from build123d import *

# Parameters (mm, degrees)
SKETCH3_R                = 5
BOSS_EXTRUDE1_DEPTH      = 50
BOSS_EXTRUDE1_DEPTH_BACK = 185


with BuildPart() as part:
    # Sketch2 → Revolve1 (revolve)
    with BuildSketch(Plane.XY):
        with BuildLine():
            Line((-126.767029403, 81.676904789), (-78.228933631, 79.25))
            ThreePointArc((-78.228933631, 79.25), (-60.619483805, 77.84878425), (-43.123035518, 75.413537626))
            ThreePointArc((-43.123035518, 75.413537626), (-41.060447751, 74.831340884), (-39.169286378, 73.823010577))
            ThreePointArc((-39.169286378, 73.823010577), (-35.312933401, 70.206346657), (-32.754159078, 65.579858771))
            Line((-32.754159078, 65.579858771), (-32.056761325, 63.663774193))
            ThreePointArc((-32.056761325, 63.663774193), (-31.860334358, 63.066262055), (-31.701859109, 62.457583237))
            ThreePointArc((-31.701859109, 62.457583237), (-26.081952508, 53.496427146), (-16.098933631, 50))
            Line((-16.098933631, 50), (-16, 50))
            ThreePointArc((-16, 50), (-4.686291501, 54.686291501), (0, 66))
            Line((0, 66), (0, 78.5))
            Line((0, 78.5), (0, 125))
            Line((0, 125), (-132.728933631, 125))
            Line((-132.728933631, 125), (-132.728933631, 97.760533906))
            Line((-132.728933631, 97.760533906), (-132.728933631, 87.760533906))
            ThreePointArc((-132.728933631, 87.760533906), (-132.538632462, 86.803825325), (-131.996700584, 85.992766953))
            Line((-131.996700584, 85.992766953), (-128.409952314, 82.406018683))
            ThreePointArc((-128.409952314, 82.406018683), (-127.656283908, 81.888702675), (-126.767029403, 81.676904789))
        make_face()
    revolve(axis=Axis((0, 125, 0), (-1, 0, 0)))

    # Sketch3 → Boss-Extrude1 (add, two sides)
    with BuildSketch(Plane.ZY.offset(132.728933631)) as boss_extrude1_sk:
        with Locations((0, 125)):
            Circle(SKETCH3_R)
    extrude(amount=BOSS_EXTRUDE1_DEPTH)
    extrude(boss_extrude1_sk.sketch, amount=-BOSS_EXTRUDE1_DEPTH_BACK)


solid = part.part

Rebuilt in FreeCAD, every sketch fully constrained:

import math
import FreeCAD as App
import Part
import Sketcher

V = App.Vector
Q = App.Units.Quantity

doc = App.newDocument("Part")
body = doc.addObject("PartDesign::Body", "Body")

sketch1 = doc.addObject("Sketcher::SketchObject", "Sketch")
body.addObject(sketch1)
sketch1.AttachmentSupport = (doc.XY_Plane, [""])
sketch1.MapMode = "FlatFace"
sketch1.addGeometry(Part.LineSegment(V(-126.767029, 81.676905, 0), V(-78.228934, 79.25, 0)), False)
sketch1.addGeometry(Part.ArcOfCircle(Part.Circle(V(-93.210219, -220.375701, 0), V(0, 0, 1), 300), math.radians(80.389044), math.radians(87.137595)), False)
sketch1.addGeometry(Part.ArcOfCircle(Part.Circle(V(-44.792608, 65.553896, 0), V(0, 0, 1), 10), math.radians(55.782762), math.radians(80.389044)), False)
sketch1.addGeometry(Part.ArcOfCircle(Part.Circle(V(-48.728934, 59.765516, 0), V(0, 0, 1), 17), math.radians(20), math.radians(55.782762)), False)
sketch1.addGeometry(Part.LineSegment(V(-32.754159, 65.579859, 0), V(-32.056761, 63.663774, 0)), False)
sketch1.addGeometry(Part.ArcOfCircle(Part.Circle(V(-41.453688, 60.243573, 0), V(0, 0, 1), 10), math.radians(12.791337), math.radians(20)), False)
sketch1.addGeometry(Part.ArcOfCircle(Part.Circle(V(-16.098934, 66, 0), V(0, 0, 1), 16), math.radians(-167.208663), math.radians(-90)), False)
sketch1.addGeometry(Part.LineSegment(V(-16.098934, 50, 0), V(-16, 50, 0)), False)
sketch1.addGeometry(Part.ArcOfCircle(Part.Circle(V(-16, 66, 0), V(0, 0, 1), 16), math.radians(-90), math.radians(0)), False)
sketch1.addGeometry(Part.LineSegment(V(0, 66, 0), V(0, 125, 0)), False)
sketch1.addGeometry(Part.LineSegment(V(0, 125, 0), V(-132.728934, 125, 0)), False)
sketch1.addGeometry(Part.LineSegment(V(-132.728934, 125, 0), V(-132.728934, 87.760534, 0)), False)
sketch1.addGeometry(Part.ArcOfCircle(Part.Circle(V(-130.228934, 87.760534, 0), V(0, 0, 1), 2.5), math.radians(-180), math.radians(-135)), False)
sketch1.addGeometry(Part.LineSegment(V(-131.996701, 85.992767, 0), V(-128.409952, 82.406019, 0)), False)
sketch1.addGeometry(Part.ArcOfCircle(Part.Circle(V(-126.642185, 84.173786, 0), V(0, 0, 1), 2.5), math.radians(-135), math.radians(-92.862405)), False)
sketch1.addGeometry(Part.LineSegment(V(0, 125, 0), V(-132.728934, 125, 0)), True)
sketch1.addConstraint(Sketcher.Constraint("Tangent", 0, 2, 1, 2))
sketch1.addConstraint(Sketcher.Constraint("Tangent", 1, 1, 2, 2))
sketch1.addConstraint(Sketcher.Constraint("Tangent", 2, 1, 3, 2))
sketch1.addConstraint(Sketcher.Constraint("Tangent", 3, 1, 4, 1))
sketch1.addConstraint(Sketcher.Constraint("Tangent", 4, 2, 5, 2))
sketch1.addConstraint(Sketcher.Constraint("Tangent", 5, 1, 6, 1))
sketch1.addConstraint(Sketcher.Constraint("Tangent", 6, 2, 7, 1))
sketch1.addConstraint(Sketcher.Constraint("Tangent", 7, 2, 8, 1))
sketch1.addConstraint(Sketcher.Constraint("Tangent", 8, 2, 9, 1))
sketch1.addConstraint(Sketcher.Constraint("Coincident", 9, 2, 10, 1))
sketch1.addConstraint(Sketcher.Constraint("Coincident", 10, 2, 11, 1))
sketch1.addConstraint(Sketcher.Constraint("Tangent", 11, 2, 12, 1))
sketch1.addConstraint(Sketcher.Constraint("Tangent", 12, 2, 13, 1))
sketch1.addConstraint(Sketcher.Constraint("Tangent", 13, 2, 14, 1))
sketch1.addConstraint(Sketcher.Constraint("Tangent", 14, 2, 0, 1))
sketch1.addConstraint(Sketcher.Constraint("Horizontal", 7))
sketch1.addConstraint(Sketcher.Constraint("Vertical", 9))
sketch1.addConstraint(Sketcher.Constraint("Horizontal", 10))
sketch1.addConstraint(Sketcher.Constraint("Vertical", 11))
sketch1.addConstraint(Sketcher.Constraint("Horizontal", 15))
sketch1.addConstraint(Sketcher.Constraint("Coincident", 15, 1, 9, 2))
sketch1.addConstraint(Sketcher.Constraint("Equal", 2, 5))
sketch1.addConstraint(Sketcher.Constraint("Equal", 6, 8))
sketch1.addConstraint(Sketcher.Constraint("Equal", 12, 14))
sketch1.addConstraint(Sketcher.Constraint("PointOnObject", 8, 2, -2))
sketch1.addConstraint(Sketcher.Constraint("Vertical", 11, 2, 15, 2))
sketch1.addConstraint(Sketcher.Constraint("Radius", 1, 300.0))
sketch1.addConstraint(Sketcher.Constraint("Radius", 2, 10.0))
sketch1.addConstraint(Sketcher.Constraint("Radius", 3, 17.0))
sketch1.addConstraint(Sketcher.Constraint("Radius", 6, 16.0))
sketch1.addConstraint(Sketcher.Constraint("Radius", 12, 2.5))
sketch1.addConstraint(Sketcher.Constraint("DistanceY", 9, 1, 9, 2, 59.0))
sketch1.addConstraint(Sketcher.Constraint("Angle", 4, Q("-70 deg")))
sketch1.addConstraint(Sketcher.Constraint("Angle", 13, Q("-45 deg")))
sketch1.addConstraint(Sketcher.Constraint("DistanceY", -1, 1, 6, 3, 66.0))
sketch1.addConstraint(Sketcher.Constraint("DistanceX", 12, 3, 0, 2, 52.0))
sketch1.addConstraint(Sketcher.Constraint("DistanceX", 11, 2, 3, 3, 84.0))
sketch1.addConstraint(Sketcher.Constraint("DistanceY", -1, 1, 0, 2, 79.25))
sketch1.addConstraint(Sketcher.Constraint("DistanceX", 3, 3, 6, 3, 32.63))
sketch1.addConstraint(Sketcher.Constraint("DistanceY", 1, 3, -1, 1, 220.375701))
sketch1.addConstraint(Sketcher.Constraint("DistanceX", 12, 2, -1, 1, 131.996701))
sketch1.addConstraint(Sketcher.Constraint("DistanceX", 5, 3, 2, 1, 2.284401))
sketch1.addConstraint(Sketcher.Constraint("Distance", 0, 48.598731))
revolution = doc.addObject("PartDesign::Revolution", "Revolution")
body.addObject(revolution)
revolution.Profile = sketch1
revolution.ReferenceAxis = (sketch1, ["Axis0"])
revolution.Angle = 360

sketch2 = doc.addObject("Sketcher::SketchObject", "Sketch001")
body.addObject(sketch2)
sketch2.AttachmentSupport = (doc.YZ_Plane, [""])
sketch2.MapMode = "FlatFace"
sketch2.AttachmentOffset = App.Placement(V(0, 0, -132.728934), App.Rotation())
sketch2.addGeometry(Part.Circle(V(125, 0, 0), V(0, 0, 1), 5), False)
sketch2.addConstraint(Sketcher.Constraint("PointOnObject", 0, 3, -1))
sketch2.addConstraint(Sketcher.Constraint("Diameter", 0, 10.0))
sketch2.addConstraint(Sketcher.Constraint("DistanceX", -1, 1, 0, 3, 125.0))
pad1 = doc.addObject("PartDesign::Pad", "Pad")
body.addObject(pad1)
pad1.Profile = sketch2
pad1.Type = "TwoLengths"
pad1.Length = 50
pad1.Length2 = 185
pad1.Reversed = True

doc.recompute()
